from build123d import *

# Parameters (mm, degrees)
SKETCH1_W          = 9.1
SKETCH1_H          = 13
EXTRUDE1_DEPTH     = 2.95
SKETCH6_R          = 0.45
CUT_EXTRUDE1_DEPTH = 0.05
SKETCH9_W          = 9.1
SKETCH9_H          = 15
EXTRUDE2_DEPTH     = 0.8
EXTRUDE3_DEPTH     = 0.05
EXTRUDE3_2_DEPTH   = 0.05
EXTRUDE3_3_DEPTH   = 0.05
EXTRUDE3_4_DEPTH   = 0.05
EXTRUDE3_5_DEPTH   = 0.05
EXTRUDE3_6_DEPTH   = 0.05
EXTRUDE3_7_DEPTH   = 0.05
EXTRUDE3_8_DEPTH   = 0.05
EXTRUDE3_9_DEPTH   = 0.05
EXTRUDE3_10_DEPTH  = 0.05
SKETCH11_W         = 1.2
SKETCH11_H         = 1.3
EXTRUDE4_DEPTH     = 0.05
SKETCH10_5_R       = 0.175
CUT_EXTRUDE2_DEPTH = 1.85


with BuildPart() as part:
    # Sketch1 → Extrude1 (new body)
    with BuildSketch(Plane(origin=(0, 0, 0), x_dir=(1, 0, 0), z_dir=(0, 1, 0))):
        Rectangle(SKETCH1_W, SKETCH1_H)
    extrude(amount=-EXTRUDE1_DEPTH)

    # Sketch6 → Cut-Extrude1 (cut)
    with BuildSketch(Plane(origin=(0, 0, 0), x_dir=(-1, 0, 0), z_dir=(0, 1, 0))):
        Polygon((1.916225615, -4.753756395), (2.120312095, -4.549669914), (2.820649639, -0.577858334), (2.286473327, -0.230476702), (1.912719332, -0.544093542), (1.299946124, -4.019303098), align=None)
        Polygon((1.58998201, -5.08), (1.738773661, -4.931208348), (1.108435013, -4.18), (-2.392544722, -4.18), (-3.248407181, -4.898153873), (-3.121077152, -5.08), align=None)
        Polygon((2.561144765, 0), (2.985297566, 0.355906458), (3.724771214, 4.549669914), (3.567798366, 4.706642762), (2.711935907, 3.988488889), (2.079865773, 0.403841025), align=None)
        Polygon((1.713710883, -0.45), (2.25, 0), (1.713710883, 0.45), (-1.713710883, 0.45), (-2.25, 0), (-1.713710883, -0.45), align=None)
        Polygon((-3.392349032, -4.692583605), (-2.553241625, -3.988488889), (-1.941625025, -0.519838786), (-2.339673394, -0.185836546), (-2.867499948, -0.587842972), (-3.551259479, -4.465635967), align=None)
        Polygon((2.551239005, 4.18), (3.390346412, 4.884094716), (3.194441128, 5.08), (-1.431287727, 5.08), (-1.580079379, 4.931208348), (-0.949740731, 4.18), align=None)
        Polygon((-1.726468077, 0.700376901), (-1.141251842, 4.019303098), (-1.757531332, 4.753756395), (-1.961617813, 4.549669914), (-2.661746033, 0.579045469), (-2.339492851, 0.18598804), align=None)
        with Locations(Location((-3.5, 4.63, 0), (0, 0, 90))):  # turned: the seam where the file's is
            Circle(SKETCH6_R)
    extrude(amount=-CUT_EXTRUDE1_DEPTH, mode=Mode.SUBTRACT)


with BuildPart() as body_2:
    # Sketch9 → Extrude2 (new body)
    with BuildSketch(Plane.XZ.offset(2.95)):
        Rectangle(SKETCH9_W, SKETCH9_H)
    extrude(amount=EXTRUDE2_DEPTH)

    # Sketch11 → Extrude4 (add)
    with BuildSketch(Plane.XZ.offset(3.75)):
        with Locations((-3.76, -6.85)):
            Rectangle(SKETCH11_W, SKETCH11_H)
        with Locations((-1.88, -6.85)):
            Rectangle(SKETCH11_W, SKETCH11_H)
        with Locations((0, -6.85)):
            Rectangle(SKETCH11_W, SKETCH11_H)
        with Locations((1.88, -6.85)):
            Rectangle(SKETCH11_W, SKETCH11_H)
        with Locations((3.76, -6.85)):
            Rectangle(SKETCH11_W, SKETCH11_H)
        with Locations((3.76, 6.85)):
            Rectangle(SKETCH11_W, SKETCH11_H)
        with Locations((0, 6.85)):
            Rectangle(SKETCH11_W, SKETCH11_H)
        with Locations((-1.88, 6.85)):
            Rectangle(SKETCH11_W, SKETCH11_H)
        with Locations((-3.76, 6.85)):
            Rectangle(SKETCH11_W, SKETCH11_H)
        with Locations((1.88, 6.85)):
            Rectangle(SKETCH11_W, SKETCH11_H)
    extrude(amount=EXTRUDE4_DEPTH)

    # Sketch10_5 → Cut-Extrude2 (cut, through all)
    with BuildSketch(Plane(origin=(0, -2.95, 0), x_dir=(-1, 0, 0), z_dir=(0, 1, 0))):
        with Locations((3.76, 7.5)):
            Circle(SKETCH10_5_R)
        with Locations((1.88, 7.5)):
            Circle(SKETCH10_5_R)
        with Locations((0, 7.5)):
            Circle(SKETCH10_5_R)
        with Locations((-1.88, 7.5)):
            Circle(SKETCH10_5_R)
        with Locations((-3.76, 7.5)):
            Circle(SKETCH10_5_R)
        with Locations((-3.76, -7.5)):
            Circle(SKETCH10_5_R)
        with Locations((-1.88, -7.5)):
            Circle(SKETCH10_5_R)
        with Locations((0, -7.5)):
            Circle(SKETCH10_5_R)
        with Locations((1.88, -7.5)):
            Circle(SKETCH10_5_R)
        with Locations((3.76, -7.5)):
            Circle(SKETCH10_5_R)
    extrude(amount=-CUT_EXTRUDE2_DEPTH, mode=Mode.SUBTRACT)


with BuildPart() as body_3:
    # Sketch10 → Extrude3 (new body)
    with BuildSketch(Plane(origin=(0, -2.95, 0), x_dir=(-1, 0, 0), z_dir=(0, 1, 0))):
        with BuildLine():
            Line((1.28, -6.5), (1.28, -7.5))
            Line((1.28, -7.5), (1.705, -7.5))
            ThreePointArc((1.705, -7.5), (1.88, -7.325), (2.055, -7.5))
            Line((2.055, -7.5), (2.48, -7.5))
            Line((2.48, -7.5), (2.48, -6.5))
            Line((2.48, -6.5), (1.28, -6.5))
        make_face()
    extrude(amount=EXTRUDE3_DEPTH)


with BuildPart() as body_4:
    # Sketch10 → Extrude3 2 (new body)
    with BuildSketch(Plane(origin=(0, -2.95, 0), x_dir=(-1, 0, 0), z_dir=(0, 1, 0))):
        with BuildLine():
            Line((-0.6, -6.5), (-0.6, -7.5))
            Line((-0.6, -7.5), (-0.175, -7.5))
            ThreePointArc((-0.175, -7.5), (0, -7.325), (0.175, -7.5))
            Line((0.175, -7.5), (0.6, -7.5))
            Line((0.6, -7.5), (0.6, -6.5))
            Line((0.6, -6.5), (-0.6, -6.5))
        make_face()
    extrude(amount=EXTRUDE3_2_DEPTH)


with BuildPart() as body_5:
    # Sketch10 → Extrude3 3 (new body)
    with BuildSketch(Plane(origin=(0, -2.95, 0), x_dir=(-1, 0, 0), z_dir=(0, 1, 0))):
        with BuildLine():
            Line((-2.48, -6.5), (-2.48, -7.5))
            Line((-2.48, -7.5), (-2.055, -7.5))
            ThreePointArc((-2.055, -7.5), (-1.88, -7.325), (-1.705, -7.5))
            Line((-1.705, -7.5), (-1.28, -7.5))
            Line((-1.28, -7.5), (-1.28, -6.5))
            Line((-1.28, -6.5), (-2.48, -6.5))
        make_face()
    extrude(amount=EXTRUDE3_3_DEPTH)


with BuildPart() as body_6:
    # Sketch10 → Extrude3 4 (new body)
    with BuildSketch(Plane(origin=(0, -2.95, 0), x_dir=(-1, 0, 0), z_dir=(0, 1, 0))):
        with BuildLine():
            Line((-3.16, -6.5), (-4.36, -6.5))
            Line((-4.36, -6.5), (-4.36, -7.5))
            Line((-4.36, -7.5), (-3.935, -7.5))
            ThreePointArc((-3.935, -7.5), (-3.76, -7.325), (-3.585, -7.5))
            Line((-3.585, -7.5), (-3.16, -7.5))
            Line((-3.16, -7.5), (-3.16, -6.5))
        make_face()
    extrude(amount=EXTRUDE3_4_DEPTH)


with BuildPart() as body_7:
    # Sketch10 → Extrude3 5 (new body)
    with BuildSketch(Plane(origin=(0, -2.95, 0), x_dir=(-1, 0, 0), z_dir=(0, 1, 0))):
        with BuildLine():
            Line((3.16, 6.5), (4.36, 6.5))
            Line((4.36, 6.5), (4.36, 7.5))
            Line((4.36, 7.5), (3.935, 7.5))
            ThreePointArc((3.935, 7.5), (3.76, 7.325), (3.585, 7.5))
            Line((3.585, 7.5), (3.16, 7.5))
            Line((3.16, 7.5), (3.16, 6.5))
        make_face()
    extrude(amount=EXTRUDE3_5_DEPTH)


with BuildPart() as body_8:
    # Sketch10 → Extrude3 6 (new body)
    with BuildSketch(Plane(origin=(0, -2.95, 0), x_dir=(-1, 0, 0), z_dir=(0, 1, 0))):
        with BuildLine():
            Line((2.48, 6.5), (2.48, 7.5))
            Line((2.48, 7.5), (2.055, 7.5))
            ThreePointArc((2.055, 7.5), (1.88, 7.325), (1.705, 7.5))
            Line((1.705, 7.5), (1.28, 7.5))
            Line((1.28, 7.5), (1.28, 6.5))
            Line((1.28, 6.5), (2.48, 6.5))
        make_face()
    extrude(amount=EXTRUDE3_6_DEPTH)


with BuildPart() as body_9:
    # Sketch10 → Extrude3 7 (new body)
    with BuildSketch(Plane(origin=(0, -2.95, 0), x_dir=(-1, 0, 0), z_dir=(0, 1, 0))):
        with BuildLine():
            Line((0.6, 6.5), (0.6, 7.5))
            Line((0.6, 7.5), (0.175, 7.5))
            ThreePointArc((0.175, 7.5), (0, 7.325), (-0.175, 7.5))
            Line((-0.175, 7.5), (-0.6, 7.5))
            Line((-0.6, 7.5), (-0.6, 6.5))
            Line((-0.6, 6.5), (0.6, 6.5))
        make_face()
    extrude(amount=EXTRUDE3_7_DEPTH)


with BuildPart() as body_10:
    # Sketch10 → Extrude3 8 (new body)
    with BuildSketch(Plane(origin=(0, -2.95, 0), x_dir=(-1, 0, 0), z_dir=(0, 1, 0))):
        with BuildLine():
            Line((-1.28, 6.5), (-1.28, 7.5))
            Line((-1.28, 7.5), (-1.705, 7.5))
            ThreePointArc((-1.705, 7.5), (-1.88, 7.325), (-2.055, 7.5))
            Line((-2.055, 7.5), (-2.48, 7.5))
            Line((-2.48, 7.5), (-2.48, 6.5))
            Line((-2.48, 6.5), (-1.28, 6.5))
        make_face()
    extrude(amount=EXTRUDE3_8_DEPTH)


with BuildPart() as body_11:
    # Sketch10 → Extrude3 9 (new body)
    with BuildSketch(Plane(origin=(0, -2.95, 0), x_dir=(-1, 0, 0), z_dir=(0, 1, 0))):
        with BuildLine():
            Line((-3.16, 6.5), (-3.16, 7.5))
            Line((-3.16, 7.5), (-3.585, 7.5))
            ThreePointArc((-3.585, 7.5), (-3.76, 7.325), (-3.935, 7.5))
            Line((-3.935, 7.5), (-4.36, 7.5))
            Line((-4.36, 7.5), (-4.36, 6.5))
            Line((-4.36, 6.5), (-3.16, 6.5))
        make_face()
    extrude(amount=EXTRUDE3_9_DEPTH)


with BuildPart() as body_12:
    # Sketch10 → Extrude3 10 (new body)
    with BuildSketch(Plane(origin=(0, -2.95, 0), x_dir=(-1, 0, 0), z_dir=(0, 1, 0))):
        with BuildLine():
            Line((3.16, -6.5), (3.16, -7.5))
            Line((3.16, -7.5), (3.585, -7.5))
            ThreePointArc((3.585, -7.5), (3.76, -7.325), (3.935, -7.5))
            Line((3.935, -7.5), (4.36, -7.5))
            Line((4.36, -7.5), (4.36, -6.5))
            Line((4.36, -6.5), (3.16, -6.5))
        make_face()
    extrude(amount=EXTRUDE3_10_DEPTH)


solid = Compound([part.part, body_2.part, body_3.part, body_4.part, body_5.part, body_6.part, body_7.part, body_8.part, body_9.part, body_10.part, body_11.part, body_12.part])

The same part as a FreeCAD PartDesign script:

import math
import FreeCAD as App
import Part
import Sketcher

V = App.Vector
Q = App.Units.Quantity


def add_polygon(sketch, points):
    """Adds a closed chain of lines whose ends are joined by coincident constraints."""
    first, n = sketch.GeometryCount, len(points)
    for a, b in zip(points, points[1:] + points[:1]):
        sketch.addGeometry(Part.LineSegment(App.Vector(*a, 0), App.Vector(*b, 0)), False)
    for i in range(n):
        sketch.addConstraint(Sketcher.Constraint("Coincident", first + i, 2, first + (i + 1) % n, 1))

doc = App.newDocument("Part")
body = doc.addObject("PartDesign::Body", "Body")

sketch1 = body.newObject("Sketcher::SketchObject", "Sketch")
sketch1.AttachmentSupport = (doc.getObject("XZ_Plane"), [""])
sketch1.MapMode = "FlatFace"
add_polygon(sketch1, [(-4.55, -6.5), (-4.55, 6.5), (4.55, 6.5), (4.55, -6.5)])
sketch1.addConstraint(Sketcher.Constraint("Vertical", 0))
sketch1.addConstraint(Sketcher.Constraint("Horizontal", 1))
sketch1.addConstraint(Sketcher.Constraint("Vertical", 2))
sketch1.addConstraint(Sketcher.Constraint("Horizontal", 3))
sketch1.addConstraint(Sketcher.Constraint("Symmetric", 0, 2, 2, 2, -1, 1))
sketch1.addConstraint(Sketcher.Constraint("DistanceY", 0, 1, 0, 2, 13.0))
sketch1.addConstraint(Sketcher.Constraint("DistanceX", 1, 1, 1, 2, 9.1))
pad1 = body.newObject("PartDesign::Pad", "Pad")
pad1.Profile = sketch1
pad1.Length = 2.95

sketch2 = body.newObject("Sketcher::SketchObject", "Sketch001")
sketch2.AttachmentSupport = (doc.getObject("XZ_Plane"), [""])
sketch2.MapMode = "FlatFace"
add_polygon(sketch2, [(-1.916226, -4.753756), (-2.120312, -4.54967), (-2.82065, -0.577858), (-2.286473, -0.230477), (-1.912719, -0.544094), (-1.299946, -4.019303)])
add_polygon(sketch2, [(-1.589982, -5.08), (-1.738774, -4.931208), (-1.108435, -4.18), (2.392545, -4.18), (3.248407, -4.898154), (3.121077, -5.08)])
add_polygon(sketch2, [(-2.561145, 0), (-2.985298, 0.355906), (-3.724771, 4.54967), (-3.567798, 4.706643), (-2.711936, 3.988489), (-2.079866, 0.403841)])
add_polygon(sketch2, [(-1.713711, -0.45), (-2.25, 0), (-1.713711, 0.45), (1.713711, 0.45), (2.25, 0), (1.713711, -0.45)])
add_polygon(sketch2, [(3.392349, -4.692584), (2.553242, -3.988489), (1.941625, -0.519839), (2.339673, -0.185837), (2.8675, -0.587843), (3.551259, -4.465636)])
add_polygon(sketch2, [(-2.551239, 4.18), (-3.390346, 4.884095), (-3.194441, 5.08), (1.431288, 5.08), (1.580079, 4.931208), (0.949741, 4.18)])
add_polygon(sketch2, [(1.726468, 0.700377), (1.141252, 4.019303), (1.757531, 4.753756), (1.961618, 4.54967), (2.661746, 0.579045), (2.339493, 0.185988)])
sketch2.addGeometry(Part.Circle(V(3.5, 4.63, 0), V(0, 0, 1), 0.45), False)
sketch2.addConstraint(Sketcher.Constraint("Horizontal", 8))
sketch2.addConstraint(Sketcher.Constraint("Horizontal", 11))
sketch2.addConstraint(Sketcher.Constraint("Horizontal", 20))
sketch2.addConstraint(Sketcher.Constraint("Horizontal", 23))
sketch2.addConstraint(Sketcher.Constraint("Horizontal", 32))
sketch2.addConstraint(Sketcher.Constraint("Horizontal", 35))
sketch2.addConstraint(Sketcher.Constraint("Symmetric", 18, 2, 21, 2, -1, 1))
sketch2.addConstraint(Sketcher.Constraint("Symmetric", 19, 2, 22, 2, -1, 1))
sketch2.addConstraint(Sketcher.Constraint("PointOnObject", 17, 2, -1))
sketch2.addConstraint(Sketcher.Constraint("PointOnObject", 18, 2, -1))
sketch2.addConstraint(Sketcher.Constraint("Parallel", 1, 4))
sketch2.addConstraint(Sketcher.Constraint("Perpendicular", 3, 5))
sketch2.addConstraint(Sketcher.Constraint("Parallel", 0, 6))
sketch2.addConstraint(Sketcher.Constraint("Parallel", 5, 7))
sketch2.addConstraint(Sketcher.Constraint("Perpendicular", 7, 9))
sketch2.addConstraint(Sketcher.Constraint("Parallel", 9, 12))
sketch2.addConstraint(Sketcher.Constraint("Parallel", 4, 13))
sketch2.addConstraint(Sketcher.Constraint("Perpendicular", 6, 14))
sketch2.addConstraint(Sketcher.Constraint("Parallel", 12, 15))
sketch2.addConstraint(Sketcher.Constraint("Parallel", 13, 16))
sketch2.addConstraint(Sketcher.Constraint("Parallel", 15, 18))
sketch2.addConstraint(Sketcher.Constraint("Parallel", 17, 19))
sketch2.addConstraint(Sketcher.Constraint("Parallel", 18, 21))
sketch2.addConstraint(Sketcher.Constraint("Parallel", 21, 24))
sketch2.addConstraint(Sketcher.Constraint("Parallel", 16, 25))
sketch2.addConstraint(Sketcher.Constraint("Parallel", 22, 26))
sketch2.addConstraint(Sketcher.Constraint("Parallel", 25, 28))
sketch2.addConstraint(Sketcher.Constraint("Parallel", 10, 29))
sketch2.addConstraint(Sketcher.Constraint("Parallel", 24, 30))
sketch2.addConstraint(Sketcher.Constraint("Parallel", 14, 31))
sketch2.addConstraint(Sketcher.Constraint("Perpendicular", 31, 33))
sketch2.addConstraint(Sketcher.Constraint("Perpendicular", 30, 34))
sketch2.addConstraint(Sketcher.Constraint("Parallel", 28, 36))
sketch2.addConstraint(Sketcher.Constraint("Parallel", 34, 37))
sketch2.addConstraint(Sketcher.Constraint("Parallel", 33, 38))
sketch2.addConstraint(Sketcher.Constraint("Parallel", 36, 39))
sketch2.addConstraint(Sketcher.Constraint("Perpendicular", 37, 41))
sketch2.addConstraint(Sketcher.Constraint("Horizontal", 13, 2, 38, 2))
sketch2.addConstraint(Sketcher.Constraint("Vertical", 20, 2, 22, 2))
sketch2.addConstraint(Sketcher.Constraint("Equal", 8, 35))
sketch2.addConstraint(Sketcher.Constraint("Equal", 10, 14))
sketch2.addConstraint(Sketcher.Constraint("Equal", 9, 15))
sketch2.addConstraint(Sketcher.Constraint("Equal", 24, 30))
sketch2.addConstraint(Sketcher.Constraint("Equal", 29, 31))
sketch2.addConstraint(Sketcher.Constraint("Equal", 6, 33))
sketch2.addConstraint(Sketcher.Constraint("Equal", 7, 34))
sketch2.addConstraint(Sketcher.Constraint("Equal", 5, 37))
sketch2.addConstraint(Sketcher.Constraint("Equal", 0, 38))
sketch2.addConstraint(Sketcher.Constraint("Diameter", 42, 0.9))
sketch2.addConstraint(Sketcher.Constraint("Angle", 0, Q("135 deg")))
sketch2.addConstraint(Sketcher.Constraint("Angle", 1, Q("100 deg")))
sketch2.addConstraint(Sketcher.Constraint("Angle", 3, Q("-40 deg")))
sketch2.addConstraint(Sketcher.Constraint("Angle", 10, Q("-125 deg")))
sketch2.addConstraint(Sketcher.Constraint("DistanceX", -1, 1, 42, 3, 3.5))
sketch2.addConstraint(Sketcher.Constraint("DistanceY", 10, 2, 8, 2, 0.9))
sketch2.addConstraint(Sketcher.Constraint("DistanceY", 3, 2, 12, 2, 0.9))
sketch2.addConstraint(Sketcher.Constraint("DistanceY", 22, 2, 20, 2, 0.9))
sketch2.addConstraint(Sketcher.Constraint("DistanceY", -1, 1, 42, 3, 4.63))
sketch2.addConstraint(Sketcher.Constraint("DistanceY", 7, 2, -1, 1, 4.18))
sketch2.addConstraint(Sketcher.Constraint("DistanceX", 18, 2, -1, 1, 2.25))
sketch2.addConstraint(Sketcher.Constraint("DistanceY", -1, 1, 31, 2, 5.08))
sketch2.addConstraint(Sketcher.Constraint("Distance", 3, 0.487901))
sketch2.addConstraint(Sketcher.Constraint("DistanceX", 8, 1, 8, 2, 3.50098))
sketch2.addConstraint(Sketcher.Constraint("DistanceX", 11, 2, 11, 1, 4.711059))
sketch2.addConstraint(Sketcher.Constraint("DistanceX", 32, 1, 32, 2, 4.625729))
sketch2.addConstraint(Sketcher.Constraint("DistanceX", 14, 2, -1, 1, 3.567798))
sketch2.addConstraint(Sketcher.Constraint("DistanceX", -1, 1, 27, 2, 2.8675))
sketch2.addConstraint(Sketcher.Constraint("DistanceY", 5, 2, 1, 2, 4.175898))
sketch2.addConstraint(Sketcher.Constraint("DistanceX", 14, 2, 12, 2, 0.582501))
sketch2.addConstraint(Sketcher.Constraint("DistanceY", 1, 2, 14, 2, 5.284501))
sketch2.addConstraint(Sketcher.Constraint("DistanceY", 1, 2, 16, 2, 0.981699))
sketch2.addConstraint(Sketcher.Constraint("Distance", 0, 0.288622))
sketch2.addConstraint(Sketcher.Constraint("Distance", 4, 3.52882))
sketch2.addConstraint(Sketcher.Constraint("Distance", 5, 0.958761))
sketch2.addConstraint(Sketcher.Constraint("Distance", 25, 3.52216))
sketch2.addConstraint(Sketcher.Constraint("DistanceX", 1, 2, -1, 1, 2.82065))
sketch2.addConstraint(Sketcher.Constraint("DistanceX", -1, 1, 24, 2, 2.553242))
sketch2.addConstraint(Sketcher.Constraint("DistanceY", 24, 2, -1, 1, 3.988489))
sketch2.addConstraint(Sketcher.Constraint("DistanceX", 31, 2, -1, 1, 3.194441))
sketch2.addConstraint(Sketcher.Constraint("DistanceX", -1, 1, 36, 2, 1.141252))
sketch2.addConstraint(Sketcher.Constraint("DistanceY", -1, 1, 40, 2, 0.185988))
sketch2.addConstraint(Sketcher.Constraint("DistanceX", -1, 1, 41, 2, 1.726468))
sketch2.addConstraint(Sketcher.Constraint("DistanceX", 5, 2, 6, 2, 0.177452))
sketch2.addConstraint(Sketcher.Constraint("DistanceX", 25, 2, 26, 2, 0.398048))
sketch2.addConstraint(Sketcher.Constraint("DistanceY", 27, 2, 39, 2, 1.166888))
pocket1 = body.newObject("PartDesign::Pocket", "Pocket")
pocket1.Profile = sketch2
pocket1.Length = 0.05
pocket1.Reversed = True
body2 = doc.addObject("PartDesign::Body", "Body001")

sketch3 = body2.newObject("Sketcher::SketchObject", "Sketch002")
sketch3.AttachmentSupport = (doc.getObject("XZ_Plane001"), [""])
sketch3.MapMode = "FlatFace"
sketch3.AttachmentOffset = App.Placement(V(0, 0, 2.95), App.Rotation())
add_polygon(sketch3, [(-4.55, 7.5), (-4.55, -7.5), (4.55, -7.5), (4.55, 7.5)])
sketch3.addConstraint(Sketcher.Constraint("Vertical", 0))
sketch3.addConstraint(Sketcher.Constraint("Horizontal", 1))
sketch3.addConstraint(Sketcher.Constraint("Vertical", 2))
sketch3.addConstraint(Sketcher.Constraint("Horizontal", 3))
sketch3.addConstraint(Sketcher.Constraint("Symmetric", 0, 2, 2, 2, -1, 1))
sketch3.addConstraint(Sketcher.Constraint("DistanceY", 0, 2, 0, 1, 15.0))
sketch3.addConstraint(Sketcher.Constraint("DistanceX", 1, 1, 1, 2, 9.1))
pad2 = body2.newObject("PartDesign::Pad", "Pad001")
pad2.Profile = sketch3
pad2.Length = 0.8

sketch4 = body2.newObject("Sketcher::SketchObject", "Sketch003")
sketch4.AttachmentSupport = (doc.getObject("XZ_Plane001"), [""])
sketch4.MapMode = "FlatFace"
sketch4.AttachmentOffset = App.Placement(V(0, 0, 3.75), App.Rotation())
add_polygon(sketch4, [(-4.36, -6.2), (-4.36, -7.5), (-3.16, -7.5), (-3.16, -6.2)])
add_polygon(sketch4, [(-2.48, -6.2), (-2.48, -7.5), (-1.28, -7.5), (-1.28, -6.2)])
add_polygon(sketch4, [(-0.6, -6.2), (-0.6, -7.5), (0.6, -7.5), (0.6, -6.2)])
add_polygon(sketch4, [(1.28, -6.2), (1.28, -7.5), (2.48, -7.5), (2.48, -6.2)])
add_polygon(sketch4, [(3.16, -6.2), (3.16, -7.5), (4.36, -7.5), (4.36, -6.2)])
add_polygon(sketch4, [(3.16, 7.5), (3.16, 6.2), (4.36, 6.2), (4.36, 7.5)])
add_polygon(sketch4, [(-0.6, 7.5), (-0.6, 6.2), (0.6, 6.2), (0.6, 7.5)])
add_polygon(sketch4, [(-2.48, 7.5), (-2.48, 6.2), (-1.28, 6.2), (-1.28, 7.5)])
add_polygon(sketch4, [(-4.36, 7.5), (-4.36, 6.2), (-3.16, 6.2), (-3.16, 7.5)])
add_polygon(sketch4, [(1.28, 7.5), (1.28, 6.2), (2.48, 6.2), (2.48, 7.5)])
sketch4.addConstraint(Sketcher.Constraint("Vertical", 0))
sketch4.addConstraint(Sketcher.Constraint("Horizontal", 1))
sketch4.addConstraint(Sketcher.Constraint("Vertical", 2))
sketch4.addConstraint(Sketcher.Constraint("Horizontal", 3))
sketch4.addConstraint(Sketcher.Constraint("Vertical", 4))
sketch4.addConstraint(Sketcher.Constraint("Horizontal", 5))
sketch4.addConstraint(Sketcher.Constraint("Vertical", 6))
sketch4.addConstraint(Sketcher.Constraint("Horizontal", 7))
sketch4.addConstraint(Sketcher.Constraint("Vertical", 8))
sketch4.addConstraint(Sketcher.Constraint("Horizontal", 9))
sketch4.addConstraint(Sketcher.Constraint("Vertical", 10))
sketch4.addConstraint(Sketcher.Constraint("Horizontal", 11))
sketch4.addConstraint(Sketcher.Constraint("Vertical", 12))
sketch4.addConstraint(Sketcher.Constraint("Horizontal", 13))
sketch4.addConstraint(Sketcher.Constraint("Vertical", 14))
sketch4.addConstraint(Sketcher.Constraint("Horizontal", 15))
sketch4.addConstraint(Sketcher.Constraint("Vertical", 16))
sketch4.addConstraint(Sketcher.Constraint("Horizontal", 17))
sketch4.addConstraint(Sketcher.Constraint("Vertical", 18))
sketch4.addConstraint(Sketcher.Constraint("Horizontal", 19))
sketch4.addConstraint(Sketcher.Constraint("Vertical", 20))
sketch4.addConstraint(Sketcher.Constraint("Horizontal", 21))
sketch4.addConstraint(Sketcher.Constraint("Vertical", 22))
sketch4.addConstraint(Sketcher.Constraint("Horizontal", 23))
sketch4.addConstraint(Sketcher.Constraint("Vertical", 24))
sketch4.addConstraint(Sketcher.Constraint("Horizontal", 25))
sketch4.addConstraint(Sketcher.Constraint("Vertical", 26))
sketch4.addConstraint(Sketcher.Constraint("Horizontal", 27))
sketch4.addConstraint(Sketcher.Constraint("Vertical", 28))
sketch4.addConstraint(Sketcher.Constraint("Horizontal", 29))
sketch4.addConstraint(Sketcher.Constraint("Vertical", 30))
sketch4.addConstraint(Sketcher.Constraint("Horizontal", 31))
sketch4.addConstraint(Sketcher.Constraint("Vertical", 32))
sketch4.addConstraint(Sketcher.Constraint("Horizontal", 33))
sketch4.addConstraint(Sketcher.Constraint("Vertical", 34))
sketch4.addConstraint(Sketcher.Constraint("Horizontal", 35))
sketch4.addConstraint(Sketcher.Constraint("Vertical", 36))
sketch4.addConstraint(Sketcher.Constraint("Horizontal", 37))
sketch4.addConstraint(Sketcher.Constraint("Vertical", 38))
sketch4.addConstraint(Sketcher.Constraint("Horizontal", 39))
sketch4.addConstraint(Sketcher.Constraint("Symmetric", 2, 2, 20, 2, -1, 1))
sketch4.addConstraint(Sketcher.Constraint("Symmetric", 0, 2, 22, 2, -1, 1))
sketch4.addConstraint(Sketcher.Constraint("Symmetric", 10, 2, 24, 2, -1, 1))
sketch4.addConstraint(Sketcher.Constraint("Symmetric", 8, 2, 26, 2, -1, 1))
sketch4.addConstraint(Sketcher.Constraint("Symmetric", 14, 2, 28, 2, -1, 1))
sketch4.addConstraint(Sketcher.Constraint("Symmetric", 12, 2, 30, 2, -1, 1))
sketch4.addConstraint(Sketcher.Constraint("Symmetric", 18, 2, 32, 2, -1, 1))
sketch4.addConstraint(Sketcher.Constraint("Symmetric", 16, 2, 34, 2, -1, 1))
sketch4.addConstraint(Sketcher.Constraint("Symmetric", 6, 2, 36, 2, -1, 1))
sketch4.addConstraint(Sketcher.Constraint("Symmetric", 4, 2, 38, 2, -1, 1))
sketch4.addConstraint(Sketcher.Constraint("Symmetric", 5, 2, 12, 2, -2))
sketch4.addConstraint(Sketcher.Constraint("Symmetric", 7, 2, 14, 2, -2))
sketch4.addConstraint(Sketcher.Constraint("Symmetric", 1, 2, 16, 2, -2))
sketch4.addConstraint(Sketcher.Constraint("Symmetric", 3, 2, 18, 2, -2))
sketch4.addConstraint(Sketcher.Constraint("Horizontal", 1, 2, 4, 2))
sketch4.addConstraint(Sketcher.Constraint("Horizontal", 3, 2, 6, 2))
sketch4.addConstraint(Sketcher.Constraint("Horizontal", 5, 2, 8, 2))
sketch4.addConstraint(Sketcher.Constraint("Horizontal", 7, 2, 10, 2))
sketch4.addConstraint(Sketcher.Constraint("Vertical", 11, 2, 24, 2))
sketch4.addConstraint(Sketcher.Constraint("Equal", 3, 5))
sketch4.addConstraint(Sketcher.Constraint("Equal", 7, 9))
sketch4.addConstraint(Sketcher.Constraint("DistanceX", 1, 1, 1, 2, 1.2))
sketch4.addConstraint(Sketcher.Constraint("DistanceY", 0, 2, 0, 1, 1.3))
sketch4.addConstraint(Sketcher.Constraint("DistanceY", 0, 2, -1, 1, 7.5))
sketch4.addConstraint(Sketcher.Constraint("DistanceX", 0, 2, -1, 1, 4.36))
sketch4.addConstraint(Sketcher.Constraint("DistanceX", 4, 2, -1, 1, 2.48))
pad3 = body2.newObject("PartDesign::Pad", "Pad002")
pad3.Profile = sketch4
pad3.Length = 0.05

sketch5 = body2.newObject("Sketcher::SketchObject", "Sketch004")
sketch5.AttachmentSupport = (doc.getObject("XZ_Plane001"), [""])
sketch5.MapMode = "FlatFace"
sketch5.AttachmentOffset = App.Placement(V(0, 0, 2.95), App.Rotation())
sketch5.addGeometry(Part.Circle(V(-3.76, 7.5, 0), V(0, 0, 1), 0.175), False)
sketch5.addGeometry(Part.Circle(V(-1.88, 7.5, 0), V(0, 0, 1), 0.175), False)
sketch5.addGeometry(Part.Circle(V(0, 7.5, 0), V(0, 0, 1), 0.175), False)
sketch5.addGeometry(Part.Circle(V(1.88, 7.5, 0), V(0, 0, 1), 0.175), False)
sketch5.addGeometry(Part.Circle(V(3.76, 7.5, 0), V(0, 0, 1), 0.175), False)
sketch5.addGeometry(Part.Circle(V(3.76, -7.5, 0), V(0, 0, 1), 0.175), False)
sketch5.addGeometry(Part.Circle(V(1.88, -7.5, 0), V(0, 0, 1), 0.175), False)
sketch5.addGeometry(Part.Circle(V(0, -7.5, 0), V(0, 0, 1), 0.175), False)
sketch5.addGeometry(Part.Circle(V(-1.88, -7.5, 0), V(0, 0, 1), 0.175), False)
sketch5.addGeometry(Part.Circle(V(-3.76, -7.5, 0), V(0, 0, 1), 0.175), False)
sketch5.addConstraint(Sketcher.Constraint("Equal", 0, 1))
sketch5.addConstraint(Sketcher.Constraint("Equal", 1, 2))
sketch5.addConstraint(Sketcher.Constraint("Equal", 2, 3))
sketch5.addConstraint(Sketcher.Constraint("Equal", 3, 4))
sketch5.addConstraint(Sketcher.Constraint("Equal", 4, 5))
sketch5.addConstraint(Sketcher.Constraint("Equal", 5, 6))
sketch5.addConstraint(Sketcher.Constraint("Equal", 6, 7))
sketch5.addConstraint(Sketcher.Constraint("Equal", 7, 8))
sketch5.addConstraint(Sketcher.Constraint("Equal", 8, 9))
sketch5.addConstraint(Sketcher.Constraint("Symmetric", 0, 3, 5, 3, -1, 1))
sketch5.addConstraint(Sketcher.Constraint("Symmetric", 1, 3, 6, 3, -1, 1))
sketch5.addConstraint(Sketcher.Constraint("Symmetric", 2, 3, 7, 3, -1, 1))
sketch5.addConstraint(Sketcher.Constraint("Symmetric", 3, 3, 8, 3, -1, 1))
sketch5.addConstraint(Sketcher.Constraint("Symmetric", 4, 3, 9, 3, -1, 1))
sketch5.addConstraint(Sketcher.Constraint("Symmetric", 1, 3, 3, 3, -2))
sketch5.addConstraint(Sketcher.Constraint("Symmetric", 0, 3, 4, 3, -2))
sketch5.addConstraint(Sketcher.Constraint("PointOnObject", 2, 3, -2))
sketch5.addConstraint(Sketcher.Constraint("Horizontal", 0, 3, 1, 3))
sketch5.addConstraint(Sketcher.Constraint("Horizontal", 1, 3, 2, 3))
sketch5.addConstraint(Sketcher.Constraint("Diameter", 0, 0.35))
sketch5.addConstraint(Sketcher.Constraint("DistanceY", 5, 3, 4, 3, 15.0))
sketch5.addConstraint(Sketcher.Constraint("DistanceX", 0, 3, -1, 1, 3.76))
sketch5.addConstraint(Sketcher.Constraint("DistanceX", 1, 3, -1, 1, 1.88))
pocket2 = body2.newObject("PartDesign::Pocket", "Pocket001")
pocket2.Profile = sketch5
pocket2.Type = "ThroughAll"
pocket2.Reversed = True
body3 = doc.addObject("PartDesign::Body", "Body002")

sketch6 = body3.newObject("Sketcher::SketchObject", "Sketch005")
sketch6.AttachmentSupport = (doc.getObject("XZ_Plane002"), [""])
sketch6.MapMode = "FlatFace"
sketch6.AttachmentOffset = App.Placement(V(0, 0, 2.95), App.Rotation())
sketch6.addGeometry(Part.LineSegment(V(-1.28, -6.5, 0), V(-1.28, -7.5, 0)), False)
sketch6.addGeometry(Part.LineSegment(V(-1.28, -7.5, 0), V(-1.705, -7.5, 0)), False)
sketch6.addGeometry(Part.ArcOfCircle(Part.Circle(V(-1.88, -7.5, 0), V(0, 0, 1), 0.175), math.radians(0), math.radians(180)), False)
sketch6.addGeometry(Part.LineSegment(V(-2.055, -7.5, 0), V(-2.48, -7.5, 0)), False)
sketch6.addGeometry(Part.LineSegment(V(-2.48, -7.5, 0), V(-2.48, -6.5, 0)), False)
sketch6.addGeometry(Part.LineSegment(V(-2.48, -6.5, 0), V(-1.28, -6.5, 0)), False)
sketch6.addConstraint(Sketcher.Constraint("Coincident", 0, 2, 1, 1))
sketch6.addConstraint(Sketcher.Constraint("Coincident", 1, 2, 2, 1))
sketch6.addConstraint(Sketcher.Constraint("Coincident", 2, 2, 3, 1))
sketch6.addConstraint(Sketcher.Constraint("Coincident", 3, 2, 4, 1))
sketch6.addConstraint(Sketcher.Constraint("Coincident", 4, 2, 5, 1))
sketch6.addConstraint(Sketcher.Constraint("Coincident", 5, 2, 0, 1))
sketch6.addConstraint(Sketcher.Constraint("Vertical", 0))
sketch6.addConstraint(Sketcher.Constraint("Horizontal", 1))
sketch6.addConstraint(Sketcher.Constraint("Horizontal", 3))
sketch6.addConstraint(Sketcher.Constraint("Vertical", 4))
sketch6.addConstraint(Sketcher.Constraint("Horizontal", 5))
sketch6.addConstraint(Sketcher.Constraint("Horizontal", 2, 3, 0, 2))
sketch6.addConstraint(Sketcher.Constraint("Horizontal", 1, 2, 2, 2))
sketch6.addConstraint(Sketcher.Constraint("Equal", 1, 3))
sketch6.addConstraint(Sketcher.Constraint("DistanceY", 0, 2, 0, 1, 1.0))
sketch6.addConstraint(Sketcher.Constraint("DistanceX", 5, 1, 5, 2, 1.2))
sketch6.addConstraint(Sketcher.Constraint("Radius", 2, 0.175))
sketch6.addConstraint(Sketcher.Constraint("DistanceY", 2, 3, -1, 1, 7.5))
sketch6.addConstraint(Sketcher.Constraint("DistanceX", 2, 3, -1, 1, 1.88))
pad4 = body3.newObject("PartDesign::Pad", "Pad003")
pad4.Profile = sketch6
pad4.Length = 0.05
pad4.Reversed = True
body4 = doc.addObject("PartDesign::Body", "Body003")

sketch7 = body4.newObject("Sketcher::SketchObject", "Sketch006")
sketch7.AttachmentSupport = (doc.getObject("XZ_Plane003"), [""])
sketch7.MapMode = "FlatFace"
sketch7.AttachmentOffset = App.Placement(V(0, 0, 2.95), App.Rotation())
sketch7.addGeometry(Part.LineSegment(V(0.6, -6.5, 0), V(0.6, -7.5, 0)), False)
sketch7.addGeometry(Part.LineSegment(V(0.6, -7.5, 0), V(0.175, -7.5, 0)), False)
sketch7.addGeometry(Part.ArcOfCircle(Part.Circle(V(0, -7.5, 0), V(0, 0, 1), 0.175), math.radians(0), math.radians(180)), False)
sketch7.addGeometry(Part.LineSegment(V(-0.175, -7.5, 0), V(-0.6, -7.5, 0)), False)
sketch7.addGeometry(Part.LineSegment(V(-0.6, -7.5, 0), V(-0.6, -6.5, 0)), False)
sketch7.addGeometry(Part.LineSegment(V(-0.6, -6.5, 0), V(0.6, -6.5, 0)), False)
sketch7.addConstraint(Sketcher.Constraint("Coincident", 0, 2, 1, 1))
sketch7.addConstraint(Sketcher.Constraint("Coincident", 1, 2, 2, 1))
sketch7.addConstraint(Sketcher.Constraint("Coincident", 2, 2, 3, 1))
sketch7.addConstraint(Sketcher.Constraint("Coincident", 3, 2, 4, 1))
sketch7.addConstraint(Sketcher.Constraint("Coincident", 4, 2, 5, 1))
sketch7.addConstraint(Sketcher.Constraint("Coincident", 5, 2, 0, 1))
sketch7.addConstraint(Sketcher.Constraint("Vertical", 0))
sketch7.addConstraint(Sketcher.Constraint("Horizontal", 1))
sketch7.addConstraint(Sketcher.Constraint("Horizontal", 3))
sketch7.addConstraint(Sketcher.Constraint("Vertical", 4))
sketch7.addConstraint(Sketcher.Constraint("Horizontal", 5))
sketch7.addConstraint(Sketcher.Constraint("Symmetric", 1, 2, 2, 2, -2))
sketch7.addConstraint(Sketcher.Constraint("Horizontal", 2, 3, 0, 2))
sketch7.addConstraint(Sketcher.Constraint("Equal", 1, 3))
sketch7.addConstraint(Sketcher.Constraint("DistanceY", 0, 2, 0, 1, 1.0))
sketch7.addConstraint(Sketcher.Constraint("DistanceX", 5, 1, 5, 2, 1.2))
sketch7.addConstraint(Sketcher.Constraint("Radius", 2, 0.175))
sketch7.addConstraint(Sketcher.Constraint("DistanceY", 2, 3, -1, 1, 7.5))
pad5 = body4.newObject("PartDesign::Pad", "Pad004")
pad5.Profile = sketch7
pad5.Length = 0.05
pad5.Reversed = True
body5 = doc.addObject("PartDesign::Body", "Body004")

sketch8 = body5.newObject("Sketcher::SketchObject", "Sketch007")
sketch8.AttachmentSupport = (doc.getObject("XZ_Plane004"), [""])
sketch8.MapMode = "FlatFace"
sketch8.AttachmentOffset = App.Placement(V(0, 0, 2.95), App.Rotation())
sketch8.addGeometry(Part.LineSegment(V(2.48, -6.5, 0), V(2.48, -7.5, 0)), False)
sketch8.addGeometry(Part.LineSegment(V(2.48, -7.5, 0), V(2.055, -7.5, 0)), False)
sketch8.addGeometry(Part.ArcOfCircle(Part.Circle(V(1.88, -7.5, 0), V(0, 0, 1), 0.175), math.radians(0), math.radians(180)), False)
sketch8.addGeometry(Part.LineSegment(V(1.705, -7.5, 0), V(1.28, -7.5, 0)), False)
sketch8.addGeometry(Part.LineSegment(V(1.28, -7.5, 0), V(1.28, -6.5, 0)), False)
sketch8.addGeometry(Part.LineSegment(V(1.28, -6.5, 0), V(2.48, -6.5, 0)), False)
sketch8.addConstraint(Sketcher.Constraint("Coincident", 0, 2, 1, 1))
sketch8.addConstraint(Sketcher.Constraint("Coincident", 1, 2, 2, 1))
sketch8.addConstraint(Sketcher.Constraint("Coincident", 2, 2, 3, 1))
sketch8.addConstraint(Sketcher.Constraint("Coincident", 3, 2, 4, 1))
sketch8.addConstraint(Sketcher.Constraint("Coincident", 4, 2, 5, 1))
sketch8.addConstraint(Sketcher.Constraint("Coincident", 5, 2, 0, 1))
sketch8.addConstraint(Sketcher.Constraint("Vertical", 0))
sketch8.addConstraint(Sketcher.Constraint("Horizontal", 1))
sketch8.addConstraint(Sketcher.Constraint("Horizontal", 3))
sketch8.addConstraint(Sketcher.Constraint("Vertical", 4))
sketch8.addConstraint(Sketcher.Constraint("Horizontal", 5))
sketch8.addConstraint(Sketcher.Constraint("Horizontal", 2, 3, 0, 2))
sketch8.addConstraint(Sketcher.Constraint("Horizontal", 1, 2, 2, 2))
sketch8.addConstraint(Sketcher.Constraint("Equal", 1, 3))
sketch8.addConstraint(Sketcher.Constraint("DistanceY", 0, 2, 0, 1, 1.0))
sketch8.addConstraint(Sketcher.Constraint("DistanceX", 5, 1, 5, 2, 1.2))
sketch8.addConstraint(Sketcher.Constraint("Radius", 2, 0.175))
sketch8.addConstraint(Sketcher.Constraint("DistanceY", 2, 3, -1, 1, 7.5))
sketch8.addConstraint(Sketcher.Constraint("DistanceX", -1, 1, 2, 3, 1.88))
pad6 = body5.newObject("PartDesign::Pad", "Pad005")
pad6.Profile = sketch8
pad6.Length = 0.05
pad6.Reversed = True
body6 = doc.addObject("PartDesign::Body", "Body005")

sketch9 = body6.newObject("Sketcher::SketchObject", "Sketch008")
sketch9.AttachmentSupport = (doc.getObject("XZ_Plane005"), [""])
sketch9.MapMode = "FlatFace"
sketch9.AttachmentOffset = App.Placement(V(0, 0, 2.95), App.Rotation())
sketch9.addGeometry(Part.LineSegment(V(3.16, -6.5, 0), V(4.36, -6.5, 0)), False)
sketch9.addGeometry(Part.LineSegment(V(4.36, -6.5, 0), V(4.36, -7.5, 0)), False)
sketch9.addGeometry(Part.LineSegment(V(4.36, -7.5, 0), V(3.935, -7.5, 0)), False)
sketch9.addGeometry(Part.ArcOfCircle(Part.Circle(V(3.76, -7.5, 0), V(0, 0, 1), 0.175), math.radians(0), math.radians(180)), False)
sketch9.addGeometry(Part.LineSegment(V(3.585, -7.5, 0), V(3.16, -7.5, 0)), False)
sketch9.addGeometry(Part.LineSegment(V(3.16, -7.5, 0), V(3.16, -6.5, 0)), False)
sketch9.addConstraint(Sketcher.Constraint("Coincident", 0, 2, 1, 1))
sketch9.addConstraint(Sketcher.Constraint("Coincident", 1, 2, 2, 1))
sketch9.addConstraint(Sketcher.Constraint("Coincident", 2, 2, 3, 1))
sketch9.addConstraint(Sketcher.Constraint("Coincident", 3, 2, 4, 1))
sketch9.addConstraint(Sketcher.Constraint("Coincident", 4, 2, 5, 1))
sketch9.addConstraint(Sketcher.Constraint("Coincident", 5, 2, 0, 1))
sketch9.addConstraint(Sketcher.Constraint("Horizontal", 0))
sketch9.addConstraint(Sketcher.Constraint("Vertical", 1))
sketch9.addConstraint(Sketcher.Constraint("Horizontal", 2))
sketch9.addConstraint(Sketcher.Constraint("Horizontal", 4))
sketch9.addConstraint(Sketcher.Constraint("Vertical", 5))
sketch9.addConstraint(Sketcher.Constraint("Horizontal", 3, 3, 1, 2))
sketch9.addConstraint(Sketcher.Constraint("Horizontal", 2, 2, 3, 2))
sketch9.addConstraint(Sketcher.Constraint("Equal", 2, 4))
sketch9.addConstraint(Sketcher.Constraint("DistanceY", 1, 2, 1, 1, 1.0))
sketch9.addConstraint(Sketcher.Constraint("DistanceX", 0, 1, 0, 2, 1.2))
sketch9.addConstraint(Sketcher.Constraint("Radius", 3, 0.175))
sketch9.addConstraint(Sketcher.Constraint("DistanceY", 3, 3, -1, 1, 7.5))
sketch9.addConstraint(Sketcher.Constraint("DistanceX", -1, 1, 3, 3, 3.76))
pad7 = body6.newObject("PartDesign::Pad", "Pad006")
pad7.Profile = sketch9
pad7.Length = 0.05
pad7.Reversed = True
body7 = doc.addObject("PartDesign::Body", "Body006")

sketch10 = body7.newObject("Sketcher::SketchObject", "Sketch009")
sketch10.AttachmentSupport = (doc.getObject("XZ_Plane006"), [""])
sketch10.MapMode = "FlatFace"
sketch10.AttachmentOffset = App.Placement(V(0, 0, 2.95), App.Rotation())
sketch10.addGeometry(Part.LineSegment(V(-3.16, 6.5, 0), V(-4.36, 6.5, 0)), False)
sketch10.addGeometry(Part.LineSegment(V(-4.36, 6.5, 0), V(-4.36, 7.5, 0)), False)
sketch10.addGeometry(Part.LineSegment(V(-4.36, 7.5, 0), V(-3.935, 7.5, 0)), False)
sketch10.addGeometry(Part.ArcOfCircle(Part.Circle(V(-3.76, 7.5, 0), V(0, 0, 1), 0.175), math.radians(180), math.radians(360)), False)
sketch10.addGeometry(Part.LineSegment(V(-3.585, 7.5, 0), V(-3.16, 7.5, 0)), False)
sketch10.addGeometry(Part.LineSegment(V(-3.16, 7.5, 0), V(-3.16, 6.5, 0)), False)
sketch10.addConstraint(Sketcher.Constraint("Coincident", 0, 2, 1, 1))
sketch10.addConstraint(Sketcher.Constraint("Coincident", 1, 2, 2, 1))
sketch10.addConstraint(Sketcher.Constraint("Coincident", 2, 2, 3, 1))
sketch10.addConstraint(Sketcher.Constraint("Coincident", 3, 2, 4, 1))
sketch10.addConstraint(Sketcher.Constraint("Coincident", 4, 2, 5, 1))
sketch10.addConstraint(Sketcher.Constraint("Coincident", 5, 2, 0, 1))
sketch10.addConstraint(Sketcher.Constraint("Horizontal", 0))
sketch10.addConstraint(Sketcher.Constraint("Vertical", 1))
sketch10.addConstraint(Sketcher.Constraint("Horizontal", 2))
sketch10.addConstraint(Sketcher.Constraint("Horizontal", 4))
sketch10.addConstraint(Sketcher.Constraint("Vertical", 5))
sketch10.addConstraint(Sketcher.Constraint("Horizontal", 3, 3, 1, 2))
sketch10.addConstraint(Sketcher.Constraint("Horizontal", 2, 2, 3, 2))
sketch10.addConstraint(Sketcher.Constraint("Equal", 2, 4))
sketch10.addConstraint(Sketcher.Constraint("DistanceY", 1, 1, 1, 2, 1.0))
sketch10.addConstraint(Sketcher.Constraint("DistanceX", 0, 2, 0, 1, 1.2))
sketch10.addConstraint(Sketcher.Constraint("Radius", 3, 0.175))
sketch10.addConstraint(Sketcher.Constraint("DistanceY", -1, 1, 3, 3, 7.5))
sketch10.addConstraint(Sketcher.Constraint("DistanceX", 3, 3, -1, 1, 3.76))
pad8 = body7.newObject("PartDesign::Pad", "Pad007")
pad8.Profile = sketch10
pad8.Length = 0.05
pad8.Reversed = True
body8 = doc.addObject("PartDesign::Body", "Body007")

sketch11 = body8.newObject("Sketcher::SketchObject", "Sketch010")
sketch11.AttachmentSupport = (doc.getObject("XZ_Plane007"), [""])
sketch11.MapMode = "FlatFace"
sketch11.AttachmentOffset = App.Placement(V(0, 0, 2.95), App.Rotation())
sketch11.addGeometry(Part.LineSegment(V(-2.48, 6.5, 0), V(-2.48, 7.5, 0)), False)
sketch11.addGeometry(Part.LineSegment(V(-2.48, 7.5, 0), V(-2.055, 7.5, 0)), False)
sketch11.addGeometry(Part.ArcOfCircle(Part.Circle(V(-1.88, 7.5, 0), V(0, 0, 1), 0.175), math.radians(180), math.radians(360)), False)
sketch11.addGeometry(Part.LineSegment(V(-1.705, 7.5, 0), V(-1.28, 7.5, 0)), False)
sketch11.addGeometry(Part.LineSegment(V(-1.28, 7.5, 0), V(-1.28, 6.5, 0)), False)
sketch11.addGeometry(Part.LineSegment(V(-1.28, 6.5, 0), V(-2.48, 6.5, 0)), False)
sketch11.addConstraint(Sketcher.Constraint("Coincident", 0, 2, 1, 1))
sketch11.addConstraint(Sketcher.Constraint("Coincident", 1, 2, 2, 1))
sketch11.addConstraint(Sketcher.Constraint("Coincident", 2, 2, 3, 1))
sketch11.addConstraint(Sketcher.Constraint("Coincident", 3, 2, 4, 1))
sketch11.addConstraint(Sketcher.Constraint("Coincident", 4, 2, 5, 1))
sketch11.addConstraint(Sketcher.Constraint("Coincident", 5, 2, 0, 1))
sketch11.addConstraint(Sketcher.Constraint("Vertical", 0))
sketch11.addConstraint(Sketcher.Constraint("Horizontal", 1))
sketch11.addConstraint(Sketcher.Constraint("Horizontal", 3))
sketch11.addConstraint(Sketcher.Constraint("Vertical", 4))
sketch11.addConstraint(Sketcher.Constraint("Horizontal", 5))
sketch11.addConstraint(Sketcher.Constraint("Horizontal", 2, 3, 0, 2))
sketch11.addConstraint(Sketcher.Constraint("Horizontal", 1, 2, 2, 2))
sketch11.addConstraint(Sketcher.Constraint("Equal", 1, 3))
sketch11.addConstraint(Sketcher.Constraint("DistanceY", 0, 1, 0, 2, 1.0))
sketch11.addConstraint(Sketcher.Constraint("DistanceX", 5, 2, 5, 1, 1.2))
sketch11.addConstraint(Sketcher.Constraint("Radius", 2, 0.175))
sketch11.addConstraint(Sketcher.Constraint("DistanceY", -1, 1, 2, 3, 7.5))
sketch11.addConstraint(Sketcher.Constraint("DistanceX", 2, 3, -1, 1, 1.88))
pad9 = body8.newObject("PartDesign::Pad", "Pad008")
pad9.Profile = sketch11
pad9.Length = 0.05
pad9.Reversed = True
body9 = doc.addObject("PartDesign::Body", "Body008")

sketch12 = body9.newObject("Sketcher::SketchObject", "Sketch011")
sketch12.AttachmentSupport = (doc.getObject("XZ_Plane008"), [""])
sketch12.MapMode = "FlatFace"
sketch12.AttachmentOffset = App.Placement(V(0, 0, 2.95), App.Rotation())
sketch12.addGeometry(Part.LineSegment(V(-0.6, 6.5, 0), V(-0.6, 7.5, 0)), False)
sketch12.addGeometry(Part.LineSegment(V(-0.6, 7.5, 0), V(-0.175, 7.5, 0)), False)
sketch12.addGeometry(Part.ArcOfCircle(Part.Circle(V(0, 7.5, 0), V(0, 0, 1), 0.175), math.radians(180), math.radians(360)), False)
sketch12.addGeometry(Part.LineSegment(V(0.175, 7.5, 0), V(0.6, 7.5, 0)), False)
sketch12.addGeometry(Part.LineSegment(V(0.6, 7.5, 0), V(0.6, 6.5, 0)), False)
sketch12.addGeometry(Part.LineSegment(V(0.6, 6.5, 0), V(-0.6, 6.5, 0)), False)
sketch12.addConstraint(Sketcher.Constraint("Coincident", 0, 2, 1, 1))
sketch12.addConstraint(Sketcher.Constraint("Coincident", 1, 2, 2, 1))
sketch12.addConstraint(Sketcher.Constraint("Coincident", 2, 2, 3, 1))
sketch12.addConstraint(Sketcher.Constraint("Coincident", 3, 2, 4, 1))
sketch12.addConstraint(Sketcher.Constraint("Coincident", 4, 2, 5, 1))
sketch12.addConstraint(Sketcher.Constraint("Coincident", 5, 2, 0, 1))
sketch12.addConstraint(Sketcher.Constraint("Vertical", 0))
sketch12.addConstraint(Sketcher.Constraint("Horizontal", 1))
sketch12.addConstraint(Sketcher.Constraint("Horizontal", 3))
sketch12.addConstraint(Sketcher.Constraint("Vertical", 4))
sketch12.addConstraint(Sketcher.Constraint("Horizontal", 5))
sketch12.addConstraint(Sketcher.Constraint("Symmetric", 1, 2, 2, 2, -2))
sketch12.addConstraint(Sketcher.Constraint("Horizontal", 2, 3, 0, 2))
sketch12.addConstraint(Sketcher.Constraint("Equal", 1, 3))
sketch12.addConstraint(Sketcher.Constraint("DistanceY", 0, 1, 0, 2, 1.0))
sketch12.addConstraint(Sketcher.Constraint("DistanceX", 5, 2, 5, 1, 1.2))
sketch12.addConstraint(Sketcher.Constraint("Radius", 2, 0.175))
sketch12.addConstraint(Sketcher.Constraint("DistanceY", -1, 1, 2, 3, 7.5))
pad10 = body9.newObject("PartDesign::Pad", "Pad009")
pad10.Profile = sketch12
pad10.Length = 0.05
pad10.Reversed = True
body10 = doc.addObject("PartDesign::Body", "Body009")

sketch13 = body10.newObject("Sketcher::SketchObject", "Sketch012")
sketch13.AttachmentSupport = (doc.getObject("XZ_Plane009"), [""])
sketch13.MapMode = "FlatFace"
sketch13.AttachmentOffset = App.Placement(V(0, 0, 2.95), App.Rotation())
sketch13.addGeometry(Part.LineSegment(V(1.28, 6.5, 0), V(1.28, 7.5, 0)), False)
sketch13.addGeometry(Part.LineSegment(V(1.28, 7.5, 0), V(1.705, 7.5, 0)), False)
sketch13.addGeometry(Part.ArcOfCircle(Part.Circle(V(1.88, 7.5, 0), V(0, 0, 1), 0.175), math.radians(180), math.radians(360)), False)
sketch13.addGeometry(Part.LineSegment(V(2.055, 7.5, 0), V(2.48, 7.5, 0)), False)
sketch13.addGeometry(Part.LineSegment(V(2.48, 7.5, 0), V(2.48, 6.5, 0)), False)
sketch13.addGeometry(Part.LineSegment(V(2.48, 6.5, 0), V(1.28, 6.5, 0)), False)
sketch13.addConstraint(Sketcher.Constraint("Coincident", 0, 2, 1, 1))
sketch13.addConstraint(Sketcher.Constraint("Coincident", 1, 2, 2, 1))
sketch13.addConstraint(Sketcher.Constraint("Coincident", 2, 2, 3, 1))
sketch13.addConstraint(Sketcher.Constraint("Coincident", 3, 2, 4, 1))
sketch13.addConstraint(Sketcher.Constraint("Coincident", 4, 2, 5, 1))
sketch13.addConstraint(Sketcher.Constraint("Coincident", 5, 2, 0, 1))
sketch13.addConstraint(Sketcher.Constraint("Vertical", 0))
sketch13.addConstraint(Sketcher.Constraint("Horizontal", 1))
sketch13.addConstraint(Sketcher.Constraint("Horizontal", 3))
sketch13.addConstraint(Sketcher.Constraint("Vertical", 4))
sketch13.addConstraint(Sketcher.Constraint("Horizontal", 5))
sketch13.addConstraint(Sketcher.Constraint("Horizontal", 2, 3, 0, 2))
sketch13.addConstraint(Sketcher.Constraint("Horizontal", 1, 2, 2, 2))
sketch13.addConstraint(Sketcher.Constraint("Equal", 1, 3))
sketch13.addConstraint(Sketcher.Constraint("DistanceY", 0, 1, 0, 2, 1.0))
sketch13.addConstraint(Sketcher.Constraint("DistanceX", 5, 2, 5, 1, 1.2))
sketch13.addConstraint(Sketcher.Constraint("Radius", 2, 0.175))
sketch13.addConstraint(Sketcher.Constraint("DistanceY", -1, 1, 2, 3, 7.5))
sketch13.addConstraint(Sketcher.Constraint("DistanceX", -1, 1, 2, 3, 1.88))
pad11 = body10.newObject("PartDesign::Pad", "Pad010")
pad11.Profile = sketch13
pad11.Length = 0.05
pad11.Reversed = True
body11 = doc.addObject("PartDesign::Body", "Body010")

sketch14 = body11.newObject("Sketcher::SketchObject", "Sketch013")
sketch14.AttachmentSupport = (doc.getObject("XZ_Plane010"), [""])
sketch14.MapMode = "FlatFace"
sketch14.AttachmentOffset = App.Placement(V(0, 0, 2.95), App.Rotation())
sketch14.addGeometry(Part.LineSegment(V(3.16, 6.5, 0), V(3.16, 7.5, 0)), False)
sketch14.addGeometry(Part.LineSegment(V(3.16, 7.5, 0), V(3.585, 7.5, 0)), False)
sketch14.addGeometry(Part.ArcOfCircle(Part.Circle(V(3.76, 7.5, 0), V(0, 0, 1), 0.175), math.radians(180), math.radians(360)), False)
sketch14.addGeometry(Part.LineSegment(V(3.935, 7.5, 0), V(4.36, 7.5, 0)), False)
sketch14.addGeometry(Part.LineSegment(V(4.36, 7.5, 0), V(4.36, 6.5, 0)), False)
sketch14.addGeometry(Part.LineSegment(V(4.36, 6.5, 0), V(3.16, 6.5, 0)), False)
sketch14.addConstraint(Sketcher.Constraint("Coincident", 0, 2, 1, 1))
sketch14.addConstraint(Sketcher.Constraint("Coincident", 1, 2, 2, 1))
sketch14.addConstraint(Sketcher.Constraint("Coincident", 2, 2, 3, 1))
sketch14.addConstraint(Sketcher.Constraint("Coincident", 3, 2, 4, 1))
sketch14.addConstraint(Sketcher.Constraint("Coincident", 4, 2, 5, 1))
sketch14.addConstraint(Sketcher.Constraint("Coincident", 5, 2, 0, 1))
sketch14.addConstraint(Sketcher.Constraint("Vertical", 0))
sketch14.addConstraint(Sketcher.Constraint("Horizontal", 1))
sketch14.addConstraint(Sketcher.Constraint("Horizontal", 3))
sketch14.addConstraint(Sketcher.Constraint("Vertical", 4))
sketch14.addConstraint(Sketcher.Constraint("Horizontal", 5))
sketch14.addConstraint(Sketcher.Constraint("Horizontal", 2, 3, 0, 2))
sketch14.addConstraint(Sketcher.Constraint("Horizontal", 1, 2, 2, 2))
sketch14.addConstraint(Sketcher.Constraint("Equal", 1, 3))
sketch14.addConstraint(Sketcher.Constraint("DistanceY", 0, 1, 0, 2, 1.0))
sketch14.addConstraint(Sketcher.Constraint("DistanceX", 5, 2, 5, 1, 1.2))
sketch14.addConstraint(Sketcher.Constraint("Radius", 2, 0.175))
sketch14.addConstraint(Sketcher.Constraint("DistanceY", -1, 1, 2, 3, 7.5))
sketch14.addConstraint(Sketcher.Constraint("DistanceX", -1, 1, 2, 3, 3.76))
pad12 = body11.newObject("PartDesign::Pad", "Pad011")
pad12.Profile = sketch14
pad12.Length = 0.05
pad12.Reversed = True
body12 = doc.addObject("PartDesign::Body", "Body011")

sketch15 = body12.newObject("Sketcher::SketchObject", "Sketch014")
sketch15.AttachmentSupport = (doc.getObject("XZ_Plane011"), [""])
sketch15.MapMode = "FlatFace"
sketch15.AttachmentOffset = App.Placement(V(0, 0, 2.95), App.Rotation())
sketch15.addGeometry(Part.LineSegment(V(-3.16, -6.5, 0), V(-3.16, -7.5, 0)), False)
sketch15.addGeometry(Part.LineSegment(V(-3.16, -7.5, 0), V(-3.585, -7.5, 0)), False)
sketch15.addGeometry(Part.ArcOfCircle(Part.Circle(V(-3.76, -7.5, 0), V(0, 0, 1), 0.175), math.radians(0), math.radians(180)), False)
sketch15.addGeometry(Part.LineSegment(V(-3.935, -7.5, 0), V(-4.36, -7.5, 0)), False)
sketch15.addGeometry(Part.LineSegment(V(-4.36, -7.5, 0), V(-4.36, -6.5, 0)), False)
sketch15.addGeometry(Part.LineSegment(V(-4.36, -6.5, 0), V(-3.16, -6.5, 0)), False)
sketch15.addConstraint(Sketcher.Constraint("Coincident", 0, 2, 1, 1))
sketch15.addConstraint(Sketcher.Constraint("Coincident", 1, 2, 2, 1))
sketch15.addConstraint(Sketcher.Constraint("Coincident", 2, 2, 3, 1))
sketch15.addConstraint(Sketcher.Constraint("Coincident", 3, 2, 4, 1))
sketch15.addConstraint(Sketcher.Constraint("Coincident", 4, 2, 5, 1))
sketch15.addConstraint(Sketcher.Constraint("Coincident", 5, 2, 0, 1))
sketch15.addConstraint(Sketcher.Constraint("Vertical", 0))
sketch15.addConstraint(Sketcher.Constraint("Horizontal", 1))
sketch15.addConstraint(Sketcher.Constraint("Horizontal", 3))
sketch15.addConstraint(Sketcher.Constraint("Vertical", 4))
sketch15.addConstraint(Sketcher.Constraint("Horizontal", 5))
sketch15.addConstraint(Sketcher.Constraint("Horizontal", 2, 3, 0, 2))
sketch15.addConstraint(Sketcher.Constraint("Horizontal", 1, 2, 2, 2))
sketch15.addConstraint(Sketcher.Constraint("Equal", 1, 3))
sketch15.addConstraint(Sketcher.Constraint("DistanceY", 0, 2, 0, 1, 1.0))
sketch15.addConstraint(Sketcher.Constraint("DistanceX", 5, 1, 5, 2, 1.2))
sketch15.addConstraint(Sketcher.Constraint("Radius", 2, 0.175))
sketch15.addConstraint(Sketcher.Constraint("DistanceY", 2, 3, -1, 1, 7.5))
sketch15.addConstraint(Sketcher.Constraint("DistanceX", 2, 3, -1, 1, 3.76))
pad13 = body12.newObject("PartDesign::Pad", "Pad012")
pad13.Profile = sketch15
pad13.Length = 0.05
pad13.Reversed = True

doc.recompute()
